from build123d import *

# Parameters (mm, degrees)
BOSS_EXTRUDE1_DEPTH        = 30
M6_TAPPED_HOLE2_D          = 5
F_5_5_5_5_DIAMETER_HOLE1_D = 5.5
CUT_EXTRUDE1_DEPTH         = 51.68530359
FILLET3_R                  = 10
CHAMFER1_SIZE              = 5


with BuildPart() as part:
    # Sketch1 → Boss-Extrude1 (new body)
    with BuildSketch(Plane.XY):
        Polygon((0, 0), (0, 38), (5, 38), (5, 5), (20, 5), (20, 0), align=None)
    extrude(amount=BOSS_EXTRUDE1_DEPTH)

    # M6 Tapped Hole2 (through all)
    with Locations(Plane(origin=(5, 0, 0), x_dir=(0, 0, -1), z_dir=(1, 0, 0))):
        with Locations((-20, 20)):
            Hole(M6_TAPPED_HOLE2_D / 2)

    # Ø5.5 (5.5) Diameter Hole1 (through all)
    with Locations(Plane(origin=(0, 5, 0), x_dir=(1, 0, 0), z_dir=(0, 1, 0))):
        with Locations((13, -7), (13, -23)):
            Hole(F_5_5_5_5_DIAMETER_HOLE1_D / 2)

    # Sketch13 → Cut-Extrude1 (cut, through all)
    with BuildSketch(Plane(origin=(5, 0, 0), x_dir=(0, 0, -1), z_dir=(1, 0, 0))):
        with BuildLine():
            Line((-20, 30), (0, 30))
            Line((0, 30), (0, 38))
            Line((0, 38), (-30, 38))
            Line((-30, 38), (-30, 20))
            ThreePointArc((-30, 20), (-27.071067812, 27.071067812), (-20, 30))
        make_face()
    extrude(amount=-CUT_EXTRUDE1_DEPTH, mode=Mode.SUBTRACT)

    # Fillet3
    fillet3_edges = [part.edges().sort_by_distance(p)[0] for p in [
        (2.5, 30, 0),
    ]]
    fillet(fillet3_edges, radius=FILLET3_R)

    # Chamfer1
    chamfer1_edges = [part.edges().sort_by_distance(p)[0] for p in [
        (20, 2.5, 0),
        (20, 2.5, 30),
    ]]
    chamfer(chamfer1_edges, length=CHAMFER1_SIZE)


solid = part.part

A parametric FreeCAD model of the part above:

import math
import FreeCAD as App
import Part
import Sketcher

V = App.Vector


def edges_at(feature, points):
    """Names of the edges that pass closest to the given points."""
    edges = feature.Shape.Edges
    near = lambda p: min(range(len(edges)), key=lambda i: edges[i].distToShape(Part.Vertex(*p))[0])
    return sorted({f"Edge{near(p) + 1}" for p in points})


def add_polygon(sketch, points):
    """Adds a closed chain of lines whose ends are joined by coincident constraints."""
    first, n = sketch.GeometryCount, len(points)
    for a, b in zip(points, points[1:] + points[:1]):
        sketch.addGeometry(Part.LineSegment(App.Vector(*a, 0), App.Vector(*b, 0)), False)
    for i in range(n):
        sketch.addConstraint(Sketcher.Constraint("Coincident", first + i, 2, first + (i + 1) % n, 1))

doc = App.newDocument("Part")
params = doc.addObject("Spreadsheet::Sheet", "Params")
for row, (alias, value) in enumerate([
    ("sketch1_width", "20 mm"),
    ("sketch1_width2", "15 mm"),
    ("sketch1_height", "38 mm"),
    ("pad1_length", "30 mm"),
    ("sketch2_diameter", "5 mm"),
    ("hole_diameter", "5 mm"),
    ("sketch3_diameter", "5.5 mm"),
    ("hole2_diameter", "5.5 mm"),
    ("sketch4_radius", "10 mm"),
    ("sketch4_width", "8 mm"),
    ("sketch4_height", "20 mm"),
    ("fillet_radius", "10 mm"),
    ("chamfer_size", "5 mm"),
], start=1):
    params.set(f"A{row}", alias)
    params.set(f"B{row}", "=" + value)
    params.setAlias(f"B{row}", alias)

body = doc.addObject("PartDesign::Body", "Body")

sketch1 = body.newObject("Sketcher::SketchObject", "Sketch")
sketch1.AttachmentSupport = (doc.getObject("XY_Plane"), [""])
sketch1.MapMode = "FlatFace"
add_polygon(sketch1, [(0, 38), (0, 0), (20, 0), (20, 5), (5, 5), (5, 38)])
sketch1.addConstraint([
    Sketcher.Constraint("Vertical", 0),
    Sketcher.Constraint("Horizontal", 1),
    Sketcher.Constraint("Vertical", 2),
    Sketcher.Constraint("Horizontal", 3),
    Sketcher.Constraint("Vertical", 4),
    Sketcher.Constraint("Horizontal", 5),
    Sketcher.Constraint("Coincident", 0, 2, -1, 1),
    Sketcher.Constraint("Equal", 5, 2),
    Sketcher.Constraint("DistanceX", 1, 1, 1, 2, 20.0),
    Sketcher.Constraint("DistanceX", 3, 2, 3, 1, 15.0),
    Sketcher.Constraint("DistanceY", 0, 2, 0, 1, 38.0),
])
sketch1.setExpression("Constraints[14]", "Params.sketch1_width")
sketch1.setExpression("Constraints[15]", "Params.sketch1_width2")
sketch1.setExpression("Constraints[16]", "Params.sketch1_height")
pad1 = body.newObject("PartDesign::Pad", "Pad")
pad1.Profile = sketch1
pad1.setExpression("Length", "Params.pad1_length")

sketch2 = body.newObject("Sketcher::SketchObject", "Sketch001")
sketch2.AttachmentSupport = (doc.getObject("YZ_Plane"), [""])
sketch2.MapMode = "FlatFace"
sketch2.AttachmentOffset = App.Placement(V(0, 0, 5), App.Rotation())
sketch2.addGeometry(Part.Circle(V(20, 20, 0), V(0, 0, 1), 2.5), False)
sketch2.addConstraint([
    Sketcher.Constraint("Diameter", 0, 5.0),
    Sketcher.Constraint("DistanceX", -1, 1, 0, 3, 20.0),
    Sketcher.Constraint("DistanceY", -1, 1, 0, 3, 20.0),
])
sketch2.setExpression("Constraints[0]", "Params.sketch2_diameter")
doc.recompute()
hole = body.newObject("PartDesign::Hole", "Hole")
hole.Profile = sketch2
hole.ThreadType = "None"
hole.setExpression("Diameter", "Params.hole_diameter")
hole.DepthType = "ThroughAll"

sketch3 = body.newObject("Sketcher::SketchObject", "Sketch002")
sketch3.AttachmentSupport = (doc.getObject("XZ_Plane"), [""])
sketch3.MapMode = "FlatFace"
sketch3.AttachmentOffset = App.Placement(V(0, 0, -5), App.Rotation())
sketch3.addGeometry([
    Part.Circle(V(13, 7, 0), V(0, 0, 1), 2.8),
    Part.Circle(V(13, 23, 0), V(0, 0, 1), 2.8),
], False)
sketch3.addConstraint([
    Sketcher.Constraint("Equal", 0, 1),
    Sketcher.Constraint("Vertical", 0, 3, 1, 3),
    Sketcher.Constraint("Diameter", 0, 5.5),
    Sketcher.Constraint("DistanceX", -1, 1, 0, 3, 13.0),
    Sketcher.Constraint("DistanceY", -1, 1, 0, 3, 7.0),
    Sketcher.Constraint("DistanceY", -1, 1, 1, 3, 23.0),
])
sketch3.setExpression("Constraints[2]", "Params.sketch3_diameter")
doc.recompute()
hole2 = body.newObject("PartDesign::Hole", "Hole001")
hole2.Profile = sketch3
hole2.ThreadType = "None"
hole2.setExpression("Diameter", "Params.hole2_diameter")
hole2.DepthType = "ThroughAll"
hole2.Reversed = True

sketch4 = body.newObject("Sketcher::SketchObject", "Sketch003")
sketch4.AttachmentSupport = (doc.getObject("YZ_Plane"), [""])
sketch4.MapMode = "FlatFace"
sketch4.AttachmentOffset = App.Placement(V(0, 0, 5), App.Rotation())
sketch4.addGeometry([
    Part.LineSegment(V(30, 20, 0), V(30, 0, 0)),
    Part.LineSegment(V(30, 0, 0), V(38, 0, 0)),
    Part.LineSegment(V(38, 0, 0), V(38, 30, 0)),
    Part.LineSegment(V(38, 30, 0), V(20, 30, 0)),
    Part.ArcOfCircle(Part.Circle(V(20, 20, 0), V(0, 0, 1), 10), math.radians(0), math.radians(90)),
], False)
sketch4.addConstraint([
    Sketcher.Constraint("Coincident", 0, 2, 1, 1),
    Sketcher.Constraint("Coincident", 1, 2, 2, 1),
    Sketcher.Constraint("Coincident", 2, 2, 3, 1),
    Sketcher.Constraint("Tangent", 3, 2, 4, 2),
    Sketcher.Constraint("Tangent", 4, 1, 0, 1),
    Sketcher.Constraint("Vertical", 0),
    Sketcher.Constraint("Horizontal", 1),
    Sketcher.Constraint("Vertical", 2),
    Sketcher.Constraint("Horizontal", 3),
    Sketcher.Constraint("PointOnObject", 0, 2, -1),
    Sketcher.Constraint("Radius", 4, 10.0),
    Sketcher.Constraint("DistanceX", 1, 1, 1, 2, 8.0),
    Sketcher.Constraint("DistanceY", 0, 2, 0, 1, 20.0),
    Sketcher.Constraint("DistanceX", -1, 1, 4, 3, 20.0),
])
sketch4.setExpression("Constraints[10]", "Params.sketch4_radius")
sketch4.setExpression("Constraints[11]", "Params.sketch4_width")
sketch4.setExpression("Constraints[12]", "Params.sketch4_height")
pocket1 = body.newObject("PartDesign::Pocket", "Pocket")
pocket1.Profile = sketch4
pocket1.Type = "ThroughAll"
doc.recompute()

fillet = body.newObject("PartDesign::Fillet", "Fillet")
fillet.Base = (pocket1, edges_at(pocket1, [(2.5, 30, 0)]))
fillet.setExpression("Radius", "Params.fillet_radius")
doc.recompute()

chamfer = body.newObject("PartDesign::Chamfer", "Chamfer")
chamfer.Base = (fillet, edges_at(fillet, [(20, 2.5, 0), (20, 2.5, 30)]))
chamfer.setExpression("Size", "Params.chamfer_size")

doc.recompute()
